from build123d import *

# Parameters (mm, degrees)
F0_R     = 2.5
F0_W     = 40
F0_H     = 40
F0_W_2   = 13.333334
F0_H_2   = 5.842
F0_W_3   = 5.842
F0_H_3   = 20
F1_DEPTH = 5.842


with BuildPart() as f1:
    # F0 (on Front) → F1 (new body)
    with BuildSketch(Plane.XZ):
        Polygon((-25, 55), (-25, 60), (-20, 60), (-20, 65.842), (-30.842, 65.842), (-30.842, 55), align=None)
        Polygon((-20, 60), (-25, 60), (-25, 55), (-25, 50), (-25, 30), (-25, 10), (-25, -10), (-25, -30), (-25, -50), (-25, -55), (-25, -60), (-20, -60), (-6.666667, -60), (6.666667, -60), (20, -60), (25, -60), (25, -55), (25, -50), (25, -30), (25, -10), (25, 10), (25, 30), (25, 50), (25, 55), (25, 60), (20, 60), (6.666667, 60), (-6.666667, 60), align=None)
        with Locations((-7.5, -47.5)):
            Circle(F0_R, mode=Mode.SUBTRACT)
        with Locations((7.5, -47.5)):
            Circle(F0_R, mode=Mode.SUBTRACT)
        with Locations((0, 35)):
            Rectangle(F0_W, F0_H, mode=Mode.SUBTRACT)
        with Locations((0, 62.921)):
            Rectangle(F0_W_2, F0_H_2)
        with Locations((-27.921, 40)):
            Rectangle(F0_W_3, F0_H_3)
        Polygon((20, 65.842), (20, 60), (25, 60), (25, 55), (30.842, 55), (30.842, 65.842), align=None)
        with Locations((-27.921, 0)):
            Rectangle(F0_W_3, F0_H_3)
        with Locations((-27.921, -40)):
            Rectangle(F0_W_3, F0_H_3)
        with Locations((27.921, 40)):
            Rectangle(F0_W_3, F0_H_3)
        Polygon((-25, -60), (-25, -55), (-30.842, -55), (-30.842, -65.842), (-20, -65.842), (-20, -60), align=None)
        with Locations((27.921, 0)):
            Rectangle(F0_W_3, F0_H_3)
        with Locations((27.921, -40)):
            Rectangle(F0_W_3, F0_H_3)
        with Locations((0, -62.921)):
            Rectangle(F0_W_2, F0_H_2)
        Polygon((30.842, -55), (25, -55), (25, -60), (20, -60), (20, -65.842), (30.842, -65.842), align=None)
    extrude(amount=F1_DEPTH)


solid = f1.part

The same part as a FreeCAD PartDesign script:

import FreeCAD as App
import Part
import Sketcher

V = App.Vector


def add_polygon(sketch, points):
    """Adds a closed chain of lines whose ends are joined by coincident constraints."""
    first, n = sketch.GeometryCount, len(points)
    for a, b in zip(points, points[1:] + points[:1]):
        sketch.addGeometry(Part.LineSegment(App.Vector(*a, 0), App.Vector(*b, 0)), False)
    for i in range(n):
        sketch.addConstraint(Sketcher.Constraint("Coincident", first + i, 2, first + (i + 1) % n, 1))

doc = App.newDocument("Part")
body = doc.addObject("PartDesign::Body", "Body")

sketch1 = body.newObject("Sketcher::SketchObject", "Sketch")
sketch1.AttachmentSupport = (doc.getObject("XZ_Plane"), [""])
sketch1.MapMode = "FlatFace"
add_polygon(sketch1, [(-20, 60), (-20, 65.842), (-30.842, 65.842), (-30.842, 55), (-25, 55), (-25, 50), (-30.842, 50), (-30.842, 30), (-25, 30), (-25, 10), (-30.842, 10), (-30.842, -10), (-25, -10), (-25, -30), (-30.842, -30), (-30.842, -50), (-25, -50), (-25, -55), (-30.842, -55), (-30.842, -65.842), (-20, -65.842), (-20, -60), (-6.666667, -60), (-6.666667, -65.842), (6.666667, -65.842), (6.666667, -60), (20, -60), (20, -65.842), (30.842, -65.842), (30.842, -55), (25, -55), (25, -50), (30.842, -50), (30.842, -30), (25, -30), (25, -10), (30.842, -10), (30.842, 10), (25, 10), (25, 30), (30.842, 30), (30.842, 50), (25, 50), (25, 55), (30.842, 55), (30.842, 65.842), (20, 65.842), (20, 60), (6.666667, 60), (6.666667, 65.842), (-6.666667, 65.842), (-6.666667, 60)])
sketch1.addGeometry(Part.Circle(V(-7.5, -47.5, 0), V(0, 0, 1), 2.5), False)
sketch1.addGeometry(Part.Circle(V(7.5, -47.5, 0), V(0, 0, 1), 2.5), False)
add_polygon(sketch1, [(20, 15), (-20, 15), (-20, 55), (20, 55)])
sketch1.addConstraint([
    Sketcher.Constraint("Vertical", 0),
    Sketcher.Constraint("Horizontal", 1),
    Sketcher.Constraint("Vertical", 2),
    Sketcher.Constraint("Horizontal", 3),
    Sketcher.Constraint("Vertical", 4),
    Sketcher.Constraint("Horizontal", 5),
    Sketcher.Constraint("Vertical", 6),
    Sketcher.Constraint("Horizontal", 7),
    Sketcher.Constraint("Vertical", 8),
    Sketcher.Constraint("Horizontal", 9),
    Sketcher.Constraint("Vertical", 10),
    Sketcher.Constraint("Horizontal", 11),
    Sketcher.Constraint("Vertical", 12),
    Sketcher.Constraint("Horizontal", 13),
    Sketcher.Constraint("Vertical", 14),
    Sketcher.Constraint("Horizontal", 15),
    Sketcher.Constraint("Vertical", 16),
    Sketcher.Constraint("Horizontal", 17),
    Sketcher.Constraint("Vertical", 18),
    Sketcher.Constraint("Horizontal", 19),
    Sketcher.Constraint("Vertical", 20),
    Sketcher.Constraint("Horizontal", 21),
    Sketcher.Constraint("Vertical", 22),
    Sketcher.Constraint("Horizontal", 23),
    Sketcher.Constraint("Vertical", 24),
    Sketcher.Constraint("Horizontal", 25),
    Sketcher.Constraint("Vertical", 26),
    Sketcher.Constraint("Horizontal", 27),
    Sketcher.Constraint("Vertical", 28),
    Sketcher.Constraint("Horizontal", 29),
    Sketcher.Constraint("Vertical", 30),
    Sketcher.Constraint("Horizontal", 31),
    Sketcher.Constraint("Vertical", 32),
    Sketcher.Constraint("Horizontal", 33),
    Sketcher.Constraint("Vertical", 34),
    Sketcher.Constraint("Horizontal", 35),
    Sketcher.Constraint("Vertical", 36),
    Sketcher.Constraint("Horizontal", 37),
    Sketcher.Constraint("Vertical", 38),
    Sketcher.Constraint("Horizontal", 39),
    Sketcher.Constraint("Vertical", 40),
    Sketcher.Constraint("Horizontal", 41),
    Sketcher.Constraint("Vertical", 42),
    Sketcher.Constraint("Horizontal", 43),
    Sketcher.Constraint("Vertical", 44),
    Sketcher.Constraint("Horizontal", 45),
    Sketcher.Constraint("Vertical", 46),
    Sketcher.Constraint("Horizontal", 47),
    Sketcher.Constraint("Vertical", 48),
    Sketcher.Constraint("Horizontal", 49),
    Sketcher.Constraint("Vertical", 50),
    Sketcher.Constraint("Horizontal", 51),
    Sketcher.Constraint("Horizontal", 54),
    Sketcher.Constraint("Vertical", 55),
    Sketcher.Constraint("Horizontal", 56),
    Sketcher.Constraint("Vertical", 57),
    Sketcher.Constraint("Equal", 52, 53),
    Sketcher.Constraint("Symmetric", 0, 2, 26, 2, -1, 1),
    Sketcher.Constraint("Symmetric", 2, 2, 28, 2, -1, 1),
    Sketcher.Constraint("Symmetric", 4, 2, 30, 2, -1, 1),
    Sketcher.Constraint("Symmetric", 6, 2, 32, 2, -1, 1),
    Sketcher.Constraint("Symmetric", 8, 2, 34, 2, -1, 1),
    Sketcher.Constraint("Symmetric", 10, 2, 36, 2, -1, 1),
    Sketcher.Constraint("Symmetric", 12, 2, 38, 2, -1, 1),
    Sketcher.Constraint("Symmetric", 14, 2, 40, 2, -1, 1),
    Sketcher.Constraint("Symmetric", 16, 2, 42, 2, -1, 1),
    Sketcher.Constraint("Symmetric", 18, 2, 44, 2, -1, 1),
    Sketcher.Constraint("Symmetric", 20, 2, 46, 2, -1, 1),
    Sketcher.Constraint("Symmetric", 22, 2, 48, 2, -1, 1),
    Sketcher.Constraint("Symmetric", 24, 2, 50, 2, -1, 1),
    Sketcher.Constraint("Symmetric", 52, 3, 53, 3, -2),
    Sketcher.Constraint("Symmetric", 21, 2, 24, 2, -2),
    Sketcher.Constraint("Symmetric", 19, 2, 26, 2, -2),
    Sketcher.Constraint("Symmetric", 17, 2, 28, 2, -2),
    Sketcher.Constraint("Symmetric", 15, 2, 30, 2, -2),
    Sketcher.Constraint("Symmetric", 13, 2, 32, 2, -2),
    Sketcher.Constraint("Symmetric", 11, 2, 34, 2, -2),
    Sketcher.Constraint("Horizontal", 19, 2, 22, 2),
    Sketcher.Constraint("Horizontal", 43, 2, 55, 2),
    Sketcher.Constraint("Vertical", 2, 2, 5, 2),
    Sketcher.Constraint("Vertical", 4, 2, 7, 2),
    Sketcher.Constraint("Vertical", 6, 2, 9, 2),
    Sketcher.Constraint("Vertical", 51, 2, 54, 2),
    Sketcher.Constraint("Vertical", 46, 2, 56, 2),
    Sketcher.Constraint("Equal", 21, 23),
    Sketcher.Constraint("Equal", 43, 0),
    Sketcher.Constraint("Equal", 45, 2),
    Sketcher.Constraint("Equal", 6, 8),
    Sketcher.Constraint("Equal", 8, 10),
    Sketcher.Constraint("Equal", 56, 55),
    Sketcher.Constraint("Diameter", 52, 5.0),
    Sketcher.Constraint("DistanceX", 54, 2, 54, 1, 40.0),
    Sketcher.Constraint("DistanceY", 4, 2, 4, 1, 5.0),
    Sketcher.Constraint("DistanceY", 6, 2, 6, 1, 20.0),
    Sketcher.Constraint("DistanceX", 3, 2, -1, 1, 25.0),
    Sketcher.Constraint("DistanceX", 52, 3, 53, 3, 15.0),
    Sketcher.Constraint("DistanceY", 52, 3, -1, 1, 47.5),
    Sketcher.Constraint("DistanceX", 1, 2, 1, 1, 10.842),
])
pad1 = body.newObject("PartDesign::Pad", "Pad")
pad1.Profile = sketch1
pad1.Length = 5.842

doc.recompute()
